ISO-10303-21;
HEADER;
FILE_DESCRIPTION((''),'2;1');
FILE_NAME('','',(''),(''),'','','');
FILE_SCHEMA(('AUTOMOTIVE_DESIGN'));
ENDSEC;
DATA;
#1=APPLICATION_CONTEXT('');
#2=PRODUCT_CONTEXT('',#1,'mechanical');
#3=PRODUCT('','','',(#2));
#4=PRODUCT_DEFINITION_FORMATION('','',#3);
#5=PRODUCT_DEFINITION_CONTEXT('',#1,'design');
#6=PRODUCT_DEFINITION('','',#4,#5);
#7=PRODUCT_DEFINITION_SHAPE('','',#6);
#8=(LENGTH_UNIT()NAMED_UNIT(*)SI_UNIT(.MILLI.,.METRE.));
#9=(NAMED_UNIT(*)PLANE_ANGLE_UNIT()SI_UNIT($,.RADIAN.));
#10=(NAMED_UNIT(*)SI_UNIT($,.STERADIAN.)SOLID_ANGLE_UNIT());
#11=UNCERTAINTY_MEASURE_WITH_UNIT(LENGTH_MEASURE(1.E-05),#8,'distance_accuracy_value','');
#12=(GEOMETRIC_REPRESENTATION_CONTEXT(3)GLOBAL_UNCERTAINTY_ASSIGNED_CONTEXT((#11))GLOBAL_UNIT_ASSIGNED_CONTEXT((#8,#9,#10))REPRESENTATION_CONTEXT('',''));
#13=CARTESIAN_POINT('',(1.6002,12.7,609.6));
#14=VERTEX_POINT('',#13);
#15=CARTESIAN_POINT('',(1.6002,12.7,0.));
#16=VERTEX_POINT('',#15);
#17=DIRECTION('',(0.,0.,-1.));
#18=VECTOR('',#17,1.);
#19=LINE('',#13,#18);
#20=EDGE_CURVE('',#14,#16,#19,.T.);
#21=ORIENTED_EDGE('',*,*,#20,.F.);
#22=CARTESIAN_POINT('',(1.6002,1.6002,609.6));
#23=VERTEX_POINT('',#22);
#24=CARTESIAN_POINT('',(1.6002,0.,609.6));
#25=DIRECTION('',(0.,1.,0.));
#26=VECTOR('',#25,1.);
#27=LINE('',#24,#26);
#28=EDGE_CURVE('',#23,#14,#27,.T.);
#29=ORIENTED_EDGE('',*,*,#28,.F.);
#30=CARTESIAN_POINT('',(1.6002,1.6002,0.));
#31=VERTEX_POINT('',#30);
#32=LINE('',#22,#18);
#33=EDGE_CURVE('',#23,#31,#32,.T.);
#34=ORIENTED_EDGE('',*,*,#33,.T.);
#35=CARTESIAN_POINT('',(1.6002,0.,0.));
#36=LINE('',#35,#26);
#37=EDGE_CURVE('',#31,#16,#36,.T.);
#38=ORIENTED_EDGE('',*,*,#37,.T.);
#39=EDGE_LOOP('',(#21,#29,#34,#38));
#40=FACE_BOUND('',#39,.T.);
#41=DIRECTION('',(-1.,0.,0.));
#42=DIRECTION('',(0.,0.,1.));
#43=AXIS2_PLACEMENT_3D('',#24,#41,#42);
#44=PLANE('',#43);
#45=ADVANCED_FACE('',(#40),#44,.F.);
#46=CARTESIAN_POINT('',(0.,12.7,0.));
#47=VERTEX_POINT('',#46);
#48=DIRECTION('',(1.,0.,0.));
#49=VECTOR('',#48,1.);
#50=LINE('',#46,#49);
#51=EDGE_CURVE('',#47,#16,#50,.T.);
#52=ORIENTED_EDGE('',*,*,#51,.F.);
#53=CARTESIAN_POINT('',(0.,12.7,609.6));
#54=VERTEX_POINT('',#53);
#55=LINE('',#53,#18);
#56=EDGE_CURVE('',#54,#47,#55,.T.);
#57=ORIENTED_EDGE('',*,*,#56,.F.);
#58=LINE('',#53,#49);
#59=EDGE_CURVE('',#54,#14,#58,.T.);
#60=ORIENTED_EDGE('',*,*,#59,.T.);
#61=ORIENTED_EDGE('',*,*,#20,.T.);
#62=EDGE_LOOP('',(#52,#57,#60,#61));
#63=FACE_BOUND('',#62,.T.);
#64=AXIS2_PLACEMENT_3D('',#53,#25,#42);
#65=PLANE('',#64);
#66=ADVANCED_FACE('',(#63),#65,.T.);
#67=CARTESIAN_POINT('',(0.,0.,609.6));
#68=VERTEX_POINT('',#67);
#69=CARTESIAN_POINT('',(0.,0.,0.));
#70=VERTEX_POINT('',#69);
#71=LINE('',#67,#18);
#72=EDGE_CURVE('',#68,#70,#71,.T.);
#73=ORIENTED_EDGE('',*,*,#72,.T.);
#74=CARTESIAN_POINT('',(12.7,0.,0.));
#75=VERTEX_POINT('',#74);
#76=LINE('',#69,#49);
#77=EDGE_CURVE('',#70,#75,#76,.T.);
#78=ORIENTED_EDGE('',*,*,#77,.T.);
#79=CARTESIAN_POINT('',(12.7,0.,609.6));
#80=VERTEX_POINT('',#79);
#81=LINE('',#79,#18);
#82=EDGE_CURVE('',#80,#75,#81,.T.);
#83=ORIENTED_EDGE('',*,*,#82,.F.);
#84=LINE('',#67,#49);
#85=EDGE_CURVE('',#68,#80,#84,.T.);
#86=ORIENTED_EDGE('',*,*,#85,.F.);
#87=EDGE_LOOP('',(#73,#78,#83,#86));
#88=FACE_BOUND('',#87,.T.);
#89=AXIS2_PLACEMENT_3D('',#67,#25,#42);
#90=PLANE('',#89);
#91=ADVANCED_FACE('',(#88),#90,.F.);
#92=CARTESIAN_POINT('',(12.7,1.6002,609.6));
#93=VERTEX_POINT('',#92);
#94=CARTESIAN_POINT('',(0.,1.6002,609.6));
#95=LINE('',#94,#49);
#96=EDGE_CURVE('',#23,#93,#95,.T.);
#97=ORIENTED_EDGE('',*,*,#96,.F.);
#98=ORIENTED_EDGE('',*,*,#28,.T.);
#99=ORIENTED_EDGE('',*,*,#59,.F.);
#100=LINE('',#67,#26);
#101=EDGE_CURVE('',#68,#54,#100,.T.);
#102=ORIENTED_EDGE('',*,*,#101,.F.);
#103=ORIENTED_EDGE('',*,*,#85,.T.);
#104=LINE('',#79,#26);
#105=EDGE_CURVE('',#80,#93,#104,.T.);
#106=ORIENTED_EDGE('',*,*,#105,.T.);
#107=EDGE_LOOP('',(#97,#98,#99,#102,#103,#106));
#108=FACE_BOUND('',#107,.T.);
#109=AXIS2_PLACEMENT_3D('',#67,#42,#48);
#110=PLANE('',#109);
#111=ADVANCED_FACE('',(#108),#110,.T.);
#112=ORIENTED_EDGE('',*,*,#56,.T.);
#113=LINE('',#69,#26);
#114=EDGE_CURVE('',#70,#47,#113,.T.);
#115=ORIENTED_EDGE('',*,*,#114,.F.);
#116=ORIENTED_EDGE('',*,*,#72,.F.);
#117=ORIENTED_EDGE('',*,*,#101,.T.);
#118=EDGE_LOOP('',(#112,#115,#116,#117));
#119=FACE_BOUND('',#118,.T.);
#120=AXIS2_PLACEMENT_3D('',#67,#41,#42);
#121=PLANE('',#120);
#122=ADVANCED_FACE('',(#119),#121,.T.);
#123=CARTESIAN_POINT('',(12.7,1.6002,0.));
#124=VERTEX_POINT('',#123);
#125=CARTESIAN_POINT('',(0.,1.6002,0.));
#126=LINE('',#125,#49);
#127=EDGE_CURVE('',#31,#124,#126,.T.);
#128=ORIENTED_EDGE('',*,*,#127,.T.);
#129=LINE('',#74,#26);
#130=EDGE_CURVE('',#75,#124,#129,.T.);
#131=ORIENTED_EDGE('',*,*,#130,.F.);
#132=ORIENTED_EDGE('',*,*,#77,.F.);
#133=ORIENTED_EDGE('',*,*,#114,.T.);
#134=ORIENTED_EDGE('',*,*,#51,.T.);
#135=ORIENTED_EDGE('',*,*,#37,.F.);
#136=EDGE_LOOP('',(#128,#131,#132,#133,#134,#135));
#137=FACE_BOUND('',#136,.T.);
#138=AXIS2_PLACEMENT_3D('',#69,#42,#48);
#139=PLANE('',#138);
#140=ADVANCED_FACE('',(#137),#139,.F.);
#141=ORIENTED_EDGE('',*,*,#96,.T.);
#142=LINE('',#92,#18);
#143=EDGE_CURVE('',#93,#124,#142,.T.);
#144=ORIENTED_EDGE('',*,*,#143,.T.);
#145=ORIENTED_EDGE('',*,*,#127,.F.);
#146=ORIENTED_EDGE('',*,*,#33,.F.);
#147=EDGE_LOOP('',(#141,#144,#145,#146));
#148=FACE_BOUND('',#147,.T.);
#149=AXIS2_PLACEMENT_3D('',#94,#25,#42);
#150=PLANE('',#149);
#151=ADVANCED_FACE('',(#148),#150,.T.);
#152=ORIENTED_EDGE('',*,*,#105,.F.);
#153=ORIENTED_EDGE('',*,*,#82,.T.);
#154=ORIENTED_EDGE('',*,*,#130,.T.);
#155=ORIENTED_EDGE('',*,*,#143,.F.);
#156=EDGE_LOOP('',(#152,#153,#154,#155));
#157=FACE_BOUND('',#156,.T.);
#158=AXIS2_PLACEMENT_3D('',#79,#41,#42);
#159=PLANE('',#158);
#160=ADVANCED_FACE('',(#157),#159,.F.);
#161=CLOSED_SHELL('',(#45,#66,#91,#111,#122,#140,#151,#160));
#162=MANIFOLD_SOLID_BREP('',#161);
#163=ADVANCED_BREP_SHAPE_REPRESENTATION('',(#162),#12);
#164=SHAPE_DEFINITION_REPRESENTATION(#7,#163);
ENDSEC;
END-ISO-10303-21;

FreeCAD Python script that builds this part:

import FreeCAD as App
import Part
import Sketcher
from FreeCAD import Vector
Q = App.Units.Quantity

doc = App.newDocument("Part")
body = doc.addObject("PartDesign::Body", "Body")

sketch1 = body.newObject("Sketcher::SketchObject", "Sketch")
sketch1.AttachmentSupport = (doc.getObject("XY_Plane"), [""])
sketch1.MapMode = "FlatFace"
sketch1.addGeometry([
    Part.LineSegment(Vector(0, 0, 0), Vector(12.7, 0, 0)),
    Part.LineSegment(Vector(12.7, 0, 0), Vector(12.7, 1.6, 0)),
    Part.LineSegment(Vector(12.7, 1.6, 0), Vector(1.6, 1.6, 0)),
    Part.LineSegment(Vector(1.6, 1.6, 0), Vector(1.6, 12.7, 0)),
    Part.LineSegment(Vector(1.6, 12.7, 0), Vector(0, 12.7, 0)),
    Part.LineSegment(Vector(0, 12.7, 0), Vector(0, 0, 0)),
], False)
sketch1.addConstraint([
    Sketcher.Constraint("Coincident", 0, 2, 1, 1),
    Sketcher.Constraint("Coincident", 1, 2, 2, 1),
    Sketcher.Constraint("Coincident", 2, 2, 3, 1),
    Sketcher.Constraint("Coincident", 3, 2, 4, 1),
    Sketcher.Constraint("Coincident", 4, 2, 5, 1),
    Sketcher.Constraint("Coincident", 5, 2, 0, 1),
    Sketcher.Constraint("Horizontal", 0),
    Sketcher.Constraint("Vertical", 1),
    Sketcher.Constraint("Horizontal", 2),
    Sketcher.Constraint("Vertical", 3),
    Sketcher.Constraint("Horizontal", 4),
    Sketcher.Constraint("Vertical", 5),
    Sketcher.Constraint("Coincident", 5, 2, -1, 1),
    Sketcher.Constraint("Equal", 4, 1),
    Sketcher.Constraint("Equal", 2, 3),
    Sketcher.Constraint("DistanceX", 0, 1, 0, 2, Q("0.5 in")),
    Sketcher.Constraint("DistanceX", 2, 2, 2, 1, Q("0.437 in")),
])
pad1 = body.newObject("PartDesign::Pad", "Pad")
pad1.Profile = sketch1
pad1.Length = Q("24 in")

doc.recompute()
